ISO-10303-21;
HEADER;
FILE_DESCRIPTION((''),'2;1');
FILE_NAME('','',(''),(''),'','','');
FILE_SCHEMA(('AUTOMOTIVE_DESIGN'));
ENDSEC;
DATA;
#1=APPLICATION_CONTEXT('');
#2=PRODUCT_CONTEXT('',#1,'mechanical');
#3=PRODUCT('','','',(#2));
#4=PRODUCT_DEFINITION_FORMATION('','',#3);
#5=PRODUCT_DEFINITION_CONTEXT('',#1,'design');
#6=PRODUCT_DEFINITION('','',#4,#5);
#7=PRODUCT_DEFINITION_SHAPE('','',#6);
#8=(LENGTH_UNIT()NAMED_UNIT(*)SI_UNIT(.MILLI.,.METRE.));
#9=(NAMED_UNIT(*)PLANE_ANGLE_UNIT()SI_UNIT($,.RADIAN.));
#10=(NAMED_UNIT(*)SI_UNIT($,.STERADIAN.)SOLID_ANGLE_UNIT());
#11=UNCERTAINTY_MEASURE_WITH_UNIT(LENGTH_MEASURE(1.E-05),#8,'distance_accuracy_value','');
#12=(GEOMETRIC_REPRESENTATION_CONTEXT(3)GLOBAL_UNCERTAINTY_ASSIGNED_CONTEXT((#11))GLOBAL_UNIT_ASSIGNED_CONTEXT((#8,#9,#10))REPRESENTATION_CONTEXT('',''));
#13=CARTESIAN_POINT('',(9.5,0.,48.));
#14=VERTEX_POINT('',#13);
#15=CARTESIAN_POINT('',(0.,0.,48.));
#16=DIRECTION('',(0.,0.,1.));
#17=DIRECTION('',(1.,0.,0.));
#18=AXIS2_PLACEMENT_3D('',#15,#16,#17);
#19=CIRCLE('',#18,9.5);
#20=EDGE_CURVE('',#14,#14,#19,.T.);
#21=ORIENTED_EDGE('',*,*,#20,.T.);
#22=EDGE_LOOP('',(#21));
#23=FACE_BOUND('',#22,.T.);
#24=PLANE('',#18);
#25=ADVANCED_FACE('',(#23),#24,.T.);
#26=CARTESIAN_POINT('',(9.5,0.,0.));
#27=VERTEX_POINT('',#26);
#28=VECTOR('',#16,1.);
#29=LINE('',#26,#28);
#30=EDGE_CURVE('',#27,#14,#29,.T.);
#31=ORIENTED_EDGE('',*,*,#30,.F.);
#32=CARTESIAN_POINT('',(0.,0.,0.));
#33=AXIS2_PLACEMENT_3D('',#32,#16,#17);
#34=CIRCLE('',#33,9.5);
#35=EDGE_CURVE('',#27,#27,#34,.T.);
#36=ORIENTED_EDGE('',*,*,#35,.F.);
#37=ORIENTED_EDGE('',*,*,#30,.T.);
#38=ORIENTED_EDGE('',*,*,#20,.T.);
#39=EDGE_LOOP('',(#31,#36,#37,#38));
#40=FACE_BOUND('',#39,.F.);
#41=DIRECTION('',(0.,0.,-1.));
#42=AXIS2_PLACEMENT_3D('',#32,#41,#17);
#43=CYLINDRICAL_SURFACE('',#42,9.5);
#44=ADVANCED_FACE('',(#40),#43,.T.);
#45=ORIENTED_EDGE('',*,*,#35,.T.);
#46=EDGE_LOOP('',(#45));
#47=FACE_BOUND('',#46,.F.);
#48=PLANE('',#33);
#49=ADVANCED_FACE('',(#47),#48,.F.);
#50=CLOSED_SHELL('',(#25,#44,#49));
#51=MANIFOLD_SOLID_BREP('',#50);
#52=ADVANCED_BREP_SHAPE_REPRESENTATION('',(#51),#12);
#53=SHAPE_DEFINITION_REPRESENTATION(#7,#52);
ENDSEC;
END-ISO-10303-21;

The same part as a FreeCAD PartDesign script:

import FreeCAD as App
import Part
import Sketcher
from FreeCAD import Vector

doc = App.newDocument("Part")
body = doc.addObject("PartDesign::Body", "Body")

# Sketch on XY plane
sketch1 = doc.addObject("Sketcher::SketchObject", "Sketch")
body.addObject(sketch1)
sketch1.AttachmentSupport = (doc.XY_Plane, [""])
sketch1.MapMode = "FlatFace"
sketch1.addGeometry(Part.Circle(Vector(0, 0, 0), Vector(0, 0, 1), 9.5), False)
sketch1.addConstraint([
    Sketcher.Constraint("Coincident", 0, 3, -1, 1),
    Sketcher.Constraint("Diameter", 0, 19.0),
])
pad1 = doc.addObject("PartDesign::Pad", "Pad")
body.addObject(pad1)
pad1.Profile = sketch1
pad1.Length = 48

doc.recompute()
